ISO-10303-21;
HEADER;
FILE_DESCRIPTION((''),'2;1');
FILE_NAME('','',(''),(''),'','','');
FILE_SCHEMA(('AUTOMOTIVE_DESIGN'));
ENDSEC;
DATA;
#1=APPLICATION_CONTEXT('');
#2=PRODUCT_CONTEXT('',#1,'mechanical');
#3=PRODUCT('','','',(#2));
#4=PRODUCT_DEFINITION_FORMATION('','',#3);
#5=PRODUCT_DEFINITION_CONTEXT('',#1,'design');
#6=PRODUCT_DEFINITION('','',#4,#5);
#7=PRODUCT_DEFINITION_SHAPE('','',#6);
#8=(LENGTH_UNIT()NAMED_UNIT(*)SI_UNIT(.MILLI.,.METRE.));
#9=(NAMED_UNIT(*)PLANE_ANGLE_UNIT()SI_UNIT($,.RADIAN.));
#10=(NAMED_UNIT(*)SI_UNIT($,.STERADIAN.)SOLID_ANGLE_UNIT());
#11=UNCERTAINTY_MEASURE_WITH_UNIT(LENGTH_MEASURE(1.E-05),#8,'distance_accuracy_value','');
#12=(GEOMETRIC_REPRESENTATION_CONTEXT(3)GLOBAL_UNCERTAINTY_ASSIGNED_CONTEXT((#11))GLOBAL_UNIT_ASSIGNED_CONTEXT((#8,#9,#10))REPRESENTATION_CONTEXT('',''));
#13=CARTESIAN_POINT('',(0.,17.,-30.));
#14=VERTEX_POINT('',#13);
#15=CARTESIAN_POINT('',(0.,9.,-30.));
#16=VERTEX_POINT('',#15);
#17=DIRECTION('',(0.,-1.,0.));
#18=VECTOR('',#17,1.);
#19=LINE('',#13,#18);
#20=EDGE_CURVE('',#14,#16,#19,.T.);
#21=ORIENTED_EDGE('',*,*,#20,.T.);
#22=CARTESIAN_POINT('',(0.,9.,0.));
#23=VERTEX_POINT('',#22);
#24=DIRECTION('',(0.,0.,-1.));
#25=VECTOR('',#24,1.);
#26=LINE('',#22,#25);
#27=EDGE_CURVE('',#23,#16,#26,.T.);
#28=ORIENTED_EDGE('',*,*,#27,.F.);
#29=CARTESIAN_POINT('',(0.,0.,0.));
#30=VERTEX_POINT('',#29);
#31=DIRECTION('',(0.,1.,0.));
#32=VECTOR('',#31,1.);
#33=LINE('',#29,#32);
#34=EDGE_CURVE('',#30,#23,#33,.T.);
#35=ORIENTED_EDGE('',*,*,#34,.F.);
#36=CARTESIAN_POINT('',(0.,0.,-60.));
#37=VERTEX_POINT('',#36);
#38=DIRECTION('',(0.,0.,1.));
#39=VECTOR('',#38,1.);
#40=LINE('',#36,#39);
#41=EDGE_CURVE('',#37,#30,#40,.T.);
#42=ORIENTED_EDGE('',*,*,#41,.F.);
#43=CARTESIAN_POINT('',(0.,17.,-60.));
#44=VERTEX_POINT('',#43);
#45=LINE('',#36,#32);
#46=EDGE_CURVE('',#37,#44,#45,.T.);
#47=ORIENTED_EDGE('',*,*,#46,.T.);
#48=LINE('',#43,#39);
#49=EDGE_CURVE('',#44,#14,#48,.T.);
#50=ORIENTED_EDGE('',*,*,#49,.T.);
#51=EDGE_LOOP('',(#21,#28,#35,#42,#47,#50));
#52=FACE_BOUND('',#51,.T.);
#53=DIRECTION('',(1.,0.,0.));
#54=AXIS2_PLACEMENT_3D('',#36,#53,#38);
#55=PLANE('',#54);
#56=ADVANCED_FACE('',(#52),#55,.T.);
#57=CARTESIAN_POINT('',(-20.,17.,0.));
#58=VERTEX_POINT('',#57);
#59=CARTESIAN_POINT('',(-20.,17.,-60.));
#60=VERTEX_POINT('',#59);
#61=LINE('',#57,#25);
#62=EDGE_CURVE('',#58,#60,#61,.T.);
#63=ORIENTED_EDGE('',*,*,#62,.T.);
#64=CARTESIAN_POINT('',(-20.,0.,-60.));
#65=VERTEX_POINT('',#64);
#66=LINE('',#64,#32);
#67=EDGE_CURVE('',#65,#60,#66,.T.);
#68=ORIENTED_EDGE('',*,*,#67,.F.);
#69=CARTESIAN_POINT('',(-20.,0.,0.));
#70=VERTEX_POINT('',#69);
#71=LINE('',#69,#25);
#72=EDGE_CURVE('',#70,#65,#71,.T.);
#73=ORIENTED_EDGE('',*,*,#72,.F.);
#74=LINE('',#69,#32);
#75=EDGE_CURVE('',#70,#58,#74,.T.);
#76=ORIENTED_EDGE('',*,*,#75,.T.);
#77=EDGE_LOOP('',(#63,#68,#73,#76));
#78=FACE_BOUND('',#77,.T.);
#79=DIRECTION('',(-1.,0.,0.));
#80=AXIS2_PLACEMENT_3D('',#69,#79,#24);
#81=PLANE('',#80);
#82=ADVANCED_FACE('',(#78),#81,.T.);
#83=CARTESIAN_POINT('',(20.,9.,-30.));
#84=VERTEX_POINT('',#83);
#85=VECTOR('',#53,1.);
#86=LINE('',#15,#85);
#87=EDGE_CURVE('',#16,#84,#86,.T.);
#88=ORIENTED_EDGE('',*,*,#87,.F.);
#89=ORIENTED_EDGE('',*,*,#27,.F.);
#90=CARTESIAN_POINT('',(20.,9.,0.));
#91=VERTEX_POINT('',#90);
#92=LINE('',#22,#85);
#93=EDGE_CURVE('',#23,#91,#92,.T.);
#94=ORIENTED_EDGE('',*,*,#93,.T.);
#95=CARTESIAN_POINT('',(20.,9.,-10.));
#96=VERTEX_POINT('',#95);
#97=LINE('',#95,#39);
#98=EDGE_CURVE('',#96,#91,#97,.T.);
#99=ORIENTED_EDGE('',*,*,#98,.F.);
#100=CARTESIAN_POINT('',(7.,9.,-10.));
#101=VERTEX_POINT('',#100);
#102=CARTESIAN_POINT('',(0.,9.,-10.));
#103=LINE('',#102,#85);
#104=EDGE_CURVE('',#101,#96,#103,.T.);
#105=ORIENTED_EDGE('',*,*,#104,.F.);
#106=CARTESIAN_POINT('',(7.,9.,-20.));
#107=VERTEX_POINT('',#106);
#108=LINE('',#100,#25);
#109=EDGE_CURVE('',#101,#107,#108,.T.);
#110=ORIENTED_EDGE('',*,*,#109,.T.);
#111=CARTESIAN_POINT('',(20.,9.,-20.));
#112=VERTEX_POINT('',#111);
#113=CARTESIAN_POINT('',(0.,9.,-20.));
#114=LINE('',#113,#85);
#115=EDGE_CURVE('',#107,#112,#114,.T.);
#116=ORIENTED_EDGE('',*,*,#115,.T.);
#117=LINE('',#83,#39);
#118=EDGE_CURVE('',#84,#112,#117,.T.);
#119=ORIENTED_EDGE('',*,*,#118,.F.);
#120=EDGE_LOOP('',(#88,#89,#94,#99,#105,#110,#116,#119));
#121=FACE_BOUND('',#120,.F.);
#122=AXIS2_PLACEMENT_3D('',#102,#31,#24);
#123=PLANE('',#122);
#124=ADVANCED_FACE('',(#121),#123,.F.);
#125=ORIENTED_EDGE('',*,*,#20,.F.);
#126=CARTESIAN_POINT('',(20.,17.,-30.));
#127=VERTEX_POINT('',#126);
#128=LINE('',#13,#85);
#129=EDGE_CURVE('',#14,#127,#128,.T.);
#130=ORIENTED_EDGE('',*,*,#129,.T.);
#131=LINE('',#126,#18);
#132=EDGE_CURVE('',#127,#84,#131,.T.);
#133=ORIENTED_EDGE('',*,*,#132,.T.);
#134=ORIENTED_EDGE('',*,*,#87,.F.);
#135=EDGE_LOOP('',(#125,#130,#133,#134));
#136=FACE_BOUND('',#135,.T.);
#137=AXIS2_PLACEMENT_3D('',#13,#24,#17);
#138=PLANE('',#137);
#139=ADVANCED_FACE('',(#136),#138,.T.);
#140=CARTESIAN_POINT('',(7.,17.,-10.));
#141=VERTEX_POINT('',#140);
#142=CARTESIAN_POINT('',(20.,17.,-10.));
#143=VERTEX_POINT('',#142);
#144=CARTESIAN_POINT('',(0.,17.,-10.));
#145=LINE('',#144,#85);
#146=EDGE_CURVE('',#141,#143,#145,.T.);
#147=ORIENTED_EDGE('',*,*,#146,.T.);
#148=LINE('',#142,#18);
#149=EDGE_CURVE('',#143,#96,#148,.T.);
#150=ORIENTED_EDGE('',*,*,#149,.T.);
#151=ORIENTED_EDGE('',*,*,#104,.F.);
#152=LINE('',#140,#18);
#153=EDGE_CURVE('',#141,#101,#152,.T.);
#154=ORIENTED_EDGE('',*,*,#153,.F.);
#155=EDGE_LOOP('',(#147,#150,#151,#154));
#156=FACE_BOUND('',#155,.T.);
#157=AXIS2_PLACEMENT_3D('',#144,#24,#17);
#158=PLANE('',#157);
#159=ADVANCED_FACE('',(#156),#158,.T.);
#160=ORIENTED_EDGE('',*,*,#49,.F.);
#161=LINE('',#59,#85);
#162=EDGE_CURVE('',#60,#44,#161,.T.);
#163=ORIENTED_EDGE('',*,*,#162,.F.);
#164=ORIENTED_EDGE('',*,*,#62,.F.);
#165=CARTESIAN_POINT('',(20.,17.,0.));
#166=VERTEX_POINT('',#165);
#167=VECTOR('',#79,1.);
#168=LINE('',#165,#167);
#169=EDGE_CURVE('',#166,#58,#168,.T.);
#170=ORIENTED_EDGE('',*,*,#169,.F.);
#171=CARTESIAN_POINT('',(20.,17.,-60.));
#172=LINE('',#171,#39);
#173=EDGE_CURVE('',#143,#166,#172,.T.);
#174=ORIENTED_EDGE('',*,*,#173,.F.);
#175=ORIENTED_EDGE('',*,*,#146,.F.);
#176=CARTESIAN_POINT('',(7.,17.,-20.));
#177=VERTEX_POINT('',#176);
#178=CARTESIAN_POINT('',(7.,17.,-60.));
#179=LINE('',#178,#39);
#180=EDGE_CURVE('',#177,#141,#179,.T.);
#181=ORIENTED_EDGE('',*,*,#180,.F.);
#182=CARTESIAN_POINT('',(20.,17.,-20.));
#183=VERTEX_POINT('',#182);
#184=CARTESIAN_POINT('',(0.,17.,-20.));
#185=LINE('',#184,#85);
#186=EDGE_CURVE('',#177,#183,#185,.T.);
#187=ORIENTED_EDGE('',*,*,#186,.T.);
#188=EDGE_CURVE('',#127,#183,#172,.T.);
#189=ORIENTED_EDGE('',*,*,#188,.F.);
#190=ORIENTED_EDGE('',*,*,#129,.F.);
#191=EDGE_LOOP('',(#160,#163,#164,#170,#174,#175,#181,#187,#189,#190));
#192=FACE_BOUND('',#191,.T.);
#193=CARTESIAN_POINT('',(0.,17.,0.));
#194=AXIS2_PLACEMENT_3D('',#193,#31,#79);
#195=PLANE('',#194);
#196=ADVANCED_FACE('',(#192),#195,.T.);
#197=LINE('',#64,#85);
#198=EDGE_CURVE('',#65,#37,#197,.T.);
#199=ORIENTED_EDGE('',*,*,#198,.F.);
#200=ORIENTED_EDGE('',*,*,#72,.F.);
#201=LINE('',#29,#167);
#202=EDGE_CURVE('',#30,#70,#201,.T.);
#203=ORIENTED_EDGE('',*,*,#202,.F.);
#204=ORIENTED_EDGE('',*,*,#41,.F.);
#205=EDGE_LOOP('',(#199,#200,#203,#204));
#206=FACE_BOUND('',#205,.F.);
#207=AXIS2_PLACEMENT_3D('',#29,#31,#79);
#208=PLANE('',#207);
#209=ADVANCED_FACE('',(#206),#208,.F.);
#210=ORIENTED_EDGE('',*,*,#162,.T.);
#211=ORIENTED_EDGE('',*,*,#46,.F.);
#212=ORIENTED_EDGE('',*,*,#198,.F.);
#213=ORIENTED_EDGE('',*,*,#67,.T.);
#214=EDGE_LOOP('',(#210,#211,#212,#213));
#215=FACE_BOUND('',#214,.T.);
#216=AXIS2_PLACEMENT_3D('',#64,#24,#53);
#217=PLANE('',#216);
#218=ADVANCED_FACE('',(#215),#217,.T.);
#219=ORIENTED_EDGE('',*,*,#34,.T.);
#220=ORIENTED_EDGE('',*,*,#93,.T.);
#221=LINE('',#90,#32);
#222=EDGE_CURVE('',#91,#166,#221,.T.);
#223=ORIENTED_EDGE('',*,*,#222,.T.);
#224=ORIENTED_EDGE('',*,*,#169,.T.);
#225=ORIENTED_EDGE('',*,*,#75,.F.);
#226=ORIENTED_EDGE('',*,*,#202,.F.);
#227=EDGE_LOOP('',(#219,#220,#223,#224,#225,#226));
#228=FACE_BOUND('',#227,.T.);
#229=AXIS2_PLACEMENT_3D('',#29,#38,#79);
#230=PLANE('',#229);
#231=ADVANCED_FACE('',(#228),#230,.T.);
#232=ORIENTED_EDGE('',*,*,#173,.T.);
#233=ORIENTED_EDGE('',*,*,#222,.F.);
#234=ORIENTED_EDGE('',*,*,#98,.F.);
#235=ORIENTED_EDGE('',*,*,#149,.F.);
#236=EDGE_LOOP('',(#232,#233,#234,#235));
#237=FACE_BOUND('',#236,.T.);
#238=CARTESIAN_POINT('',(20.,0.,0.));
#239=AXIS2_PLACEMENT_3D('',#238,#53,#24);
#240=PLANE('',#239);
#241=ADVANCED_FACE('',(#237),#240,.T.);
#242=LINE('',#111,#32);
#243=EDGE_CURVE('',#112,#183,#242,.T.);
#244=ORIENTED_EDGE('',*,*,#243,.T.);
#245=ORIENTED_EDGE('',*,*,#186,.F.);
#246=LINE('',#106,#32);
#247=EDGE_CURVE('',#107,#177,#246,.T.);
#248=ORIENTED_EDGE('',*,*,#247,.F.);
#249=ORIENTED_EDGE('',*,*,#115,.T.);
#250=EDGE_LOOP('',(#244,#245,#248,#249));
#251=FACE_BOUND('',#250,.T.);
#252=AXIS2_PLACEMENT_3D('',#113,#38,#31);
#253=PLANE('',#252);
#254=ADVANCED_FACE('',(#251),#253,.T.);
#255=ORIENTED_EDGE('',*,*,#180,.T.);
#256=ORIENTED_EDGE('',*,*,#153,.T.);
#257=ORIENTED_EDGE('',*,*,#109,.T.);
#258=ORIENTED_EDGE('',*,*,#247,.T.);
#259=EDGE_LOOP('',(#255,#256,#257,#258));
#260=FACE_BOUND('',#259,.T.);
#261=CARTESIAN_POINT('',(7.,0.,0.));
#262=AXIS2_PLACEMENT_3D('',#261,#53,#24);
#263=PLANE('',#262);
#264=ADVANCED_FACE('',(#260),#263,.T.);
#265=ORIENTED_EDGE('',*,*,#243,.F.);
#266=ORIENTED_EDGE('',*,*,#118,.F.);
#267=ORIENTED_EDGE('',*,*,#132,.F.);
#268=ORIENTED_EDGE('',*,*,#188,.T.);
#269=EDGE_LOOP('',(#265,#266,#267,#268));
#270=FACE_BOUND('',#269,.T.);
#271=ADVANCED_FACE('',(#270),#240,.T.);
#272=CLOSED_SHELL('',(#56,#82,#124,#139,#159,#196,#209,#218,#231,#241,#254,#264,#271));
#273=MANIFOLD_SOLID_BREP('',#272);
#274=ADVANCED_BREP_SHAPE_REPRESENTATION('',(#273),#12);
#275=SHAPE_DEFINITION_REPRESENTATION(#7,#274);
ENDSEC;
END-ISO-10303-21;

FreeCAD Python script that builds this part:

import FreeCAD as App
import Part
import Sketcher

V = App.Vector

doc = App.newDocument("Part")
params = doc.addObject("Spreadsheet::Sheet", "Params")
for row, (alias, value) in enumerate([
    ("sketch1_width", "20 mm"),
    ("sketch1_height", "60 mm"),
    ("pad1_length", "17 mm"),
    ("sketch2_width", "8 mm"),
    ("sketch2_height", "10 mm"),
    ("pad2_length", "20 mm"),
    ("sketch3_width", "8 mm"),
    ("sketch3_height", "10 mm"),
    ("pad3_length", "7 mm"),
], start=1):
    params.set(f"A{row}", alias)
    params.set(f"B{row}", "=" + value)
    params.setAlias(f"B{row}", alias)

body = doc.addObject("PartDesign::Body", "Body")

# Sketch on XZ plane
sketch1 = body.newObject("Sketcher::SketchObject", "Sketch")
sketch1.AttachmentSupport = (doc.getObject("XZ_Plane"), [""])
sketch1.MapMode = "FlatFace"
sketch1.addGeometry([
    Part.LineSegment(V(-20, 0, 0), V(0, 0, 0)),
    Part.LineSegment(V(0, 0, 0), V(0, -60, 0)),
    Part.LineSegment(V(0, -60, 0), V(-20, -60, 0)),
    Part.LineSegment(V(-20, -60, 0), V(-20, 0, 0)),
], False)
sketch1.addConstraint([
    Sketcher.Constraint("Coincident", 0, 2, 1, 1),
    Sketcher.Constraint("Coincident", 1, 2, 2, 1),
    Sketcher.Constraint("Coincident", 2, 2, 3, 1),
    Sketcher.Constraint("Coincident", 3, 2, 0, 1),
    Sketcher.Constraint("Horizontal", 0),
    Sketcher.Constraint("Vertical", 1),
    Sketcher.Constraint("Horizontal", 2),
    Sketcher.Constraint("Vertical", 3),
    Sketcher.Constraint("Coincident", 0, 2, -1, 1),
    Sketcher.Constraint("DistanceX", 0, 1, 0, 2, 20.0),
    Sketcher.Constraint("DistanceY", 1, 2, 1, 1, 60.0),
])
sketch1.setExpression("Constraints[9]", "Params.sketch1_width")
sketch1.setExpression("Constraints[10]", "Params.sketch1_height")
pad1 = body.newObject("PartDesign::Pad", "Pad")
pad1.Profile = sketch1
pad1.setExpression("Length", "Params.pad1_length")
pad1.Reversed = True

# Sketch on YZ plane
sketch2 = body.newObject("Sketcher::SketchObject", "Sketch001")
sketch2.AttachmentSupport = (doc.getObject("YZ_Plane"), [""])
sketch2.MapMode = "FlatFace"
sketch2.addGeometry([
    Part.LineSegment(V(9, -30, 0), V(17, -30, 0)),  # 0
    Part.LineSegment(V(17, -30, 0), V(17, -20, 0)),  # 1
    Part.LineSegment(V(17, -20, 0), V(9, -20, 0)),  # 2
    Part.LineSegment(V(9, -20, 0), V(9, -30, 0)),  # 3
    Part.LineSegment(V(9, -10, 0), V(17, -10, 0)),  # 4
    Part.LineSegment(V(17, -10, 0), V(17, 0, 0)),  # 5
    Part.LineSegment(V(17, 0, 0), V(9, 0, 0)),  # 6
    Part.LineSegment(V(9, 0, 0), V(9, -10, 0)),  # 7
], False)
sketch2.addConstraint([
    Sketcher.Constraint("Coincident", 0, 2, 1, 1),
    Sketcher.Constraint("Coincident", 1, 2, 2, 1),
    Sketcher.Constraint("Coincident", 2, 2, 3, 1),
    Sketcher.Constraint("Coincident", 3, 2, 0, 1),
    Sketcher.Constraint("Coincident", 4, 2, 5, 1),
    Sketcher.Constraint("Coincident", 5, 2, 6, 1),
    Sketcher.Constraint("Coincident", 6, 2, 7, 1),
    Sketcher.Constraint("Coincident", 7, 2, 4, 1),
    Sketcher.Constraint("Horizontal", 0),
    Sketcher.Constraint("Vertical", 1),
    Sketcher.Constraint("Horizontal", 2),
    Sketcher.Constraint("Vertical", 3),
    Sketcher.Constraint("Horizontal", 4),
    Sketcher.Constraint("Vertical", 5),
    Sketcher.Constraint("Horizontal", 6),
    Sketcher.Constraint("Vertical", 7),
    Sketcher.Constraint("PointOnObject", 5, 2, -1),
    Sketcher.Constraint("Vertical", 1, 2, 4, 2),
    Sketcher.Constraint("Vertical", 3, 2, 6, 2),
    Sketcher.Constraint("Equal", 3, 5),
    Sketcher.Constraint("DistanceX", 0, 1, 0, 2, 8.0),
    Sketcher.Constraint("DistanceY", 1, 1, 1, 2, 10.0),
    Sketcher.Constraint("DistanceY", 1, 2, 4, 2, 10.0),
    Sketcher.Constraint("DistanceX", -1, 1, 0, 2, 17.0),
])
sketch2.setExpression("Constraints[20]", "Params.sketch2_width")
sketch2.setExpression("Constraints[21]", "Params.sketch2_height")
pad2 = body.newObject("PartDesign::Pad", "Pad001")
pad2.Profile = sketch2
pad2.setExpression("Length", "Params.pad2_length")

# Sketch on YZ plane
sketch3 = body.newObject("Sketcher::SketchObject", "Sketch002")
sketch3.AttachmentSupport = (doc.getObject("YZ_Plane"), [""])
sketch3.MapMode = "FlatFace"
sketch3.addGeometry([
    Part.LineSegment(V(9, -20, 0), V(17, -20, 0)),
    Part.LineSegment(V(17, -20, 0), V(17, -10, 0)),
    Part.LineSegment(V(17, -10, 0), V(9, -10, 0)),
    Part.LineSegment(V(9, -10, 0), V(9, -20, 0)),
], False)
sketch3.addConstraint([
    Sketcher.Constraint("Coincident", 0, 2, 1, 1),
    Sketcher.Constraint("Coincident", 1, 2, 2, 1),
    Sketcher.Constraint("Coincident", 2, 2, 3, 1),
    Sketcher.Constraint("Coincident", 3, 2, 0, 1),
    Sketcher.Constraint("Horizontal", 0),
    Sketcher.Constraint("Vertical", 1),
    Sketcher.Constraint("Horizontal", 2),
    Sketcher.Constraint("Vertical", 3),
    Sketcher.Constraint("DistanceX", 0, 1, 0, 2, 8.0),
    Sketcher.Constraint("DistanceY", 1, 1, 1, 2, 10.0),
    Sketcher.Constraint("DistanceY", 1, 2, -1, 1, 10.0),
    Sketcher.Constraint("DistanceX", -1, 1, 0, 2, 17.0),
])
sketch3.setExpression("Constraints[8]", "Params.sketch3_width")
sketch3.setExpression("Constraints[9]", "Params.sketch3_height")
pad3 = body.newObject("PartDesign::Pad", "Pad002")
pad3.Profile = sketch3
pad3.setExpression("Length", "Params.pad3_length")

doc.recompute()
